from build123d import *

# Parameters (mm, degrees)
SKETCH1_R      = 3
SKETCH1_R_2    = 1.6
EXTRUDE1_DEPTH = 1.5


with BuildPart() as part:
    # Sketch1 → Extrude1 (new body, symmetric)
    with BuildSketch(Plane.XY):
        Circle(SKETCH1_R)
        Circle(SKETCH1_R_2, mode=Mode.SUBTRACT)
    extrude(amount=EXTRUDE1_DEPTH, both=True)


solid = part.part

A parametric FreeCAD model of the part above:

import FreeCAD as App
import Part
import Sketcher

V = App.Vector
Q = App.Units.Quantity

doc = App.newDocument("Part")
body = doc.addObject("PartDesign::Body", "Body")

sketch1 = body.newObject("Sketcher::SketchObject", "Sketch")
sketch1.AttachmentSupport = (doc.getObject("XY_Plane"), [""])
sketch1.MapMode = "FlatFace"
sketch1.addGeometry([
    Part.Circle(V(0, 0, 0), V(0, 0, 1), 3),
    Part.Circle(V(0, 0, 0), V(0, 0, 1), 1.6),
], False)
sketch1.addConstraint([
    Sketcher.Constraint("Coincident", 0, 3, -1, 1),
    Sketcher.Constraint("Coincident", 1, 3, -1, 1),
    Sketcher.Constraint("Diameter", 0, Q("6 mm")),
    Sketcher.Constraint("Diameter", 1, Q("3.2 mm")),
])
pad1 = body.newObject("PartDesign::Pad", "Pad")
pad1.Profile = sketch1
pad1.Length = 3
pad1.Midplane = True

doc.recompute()
